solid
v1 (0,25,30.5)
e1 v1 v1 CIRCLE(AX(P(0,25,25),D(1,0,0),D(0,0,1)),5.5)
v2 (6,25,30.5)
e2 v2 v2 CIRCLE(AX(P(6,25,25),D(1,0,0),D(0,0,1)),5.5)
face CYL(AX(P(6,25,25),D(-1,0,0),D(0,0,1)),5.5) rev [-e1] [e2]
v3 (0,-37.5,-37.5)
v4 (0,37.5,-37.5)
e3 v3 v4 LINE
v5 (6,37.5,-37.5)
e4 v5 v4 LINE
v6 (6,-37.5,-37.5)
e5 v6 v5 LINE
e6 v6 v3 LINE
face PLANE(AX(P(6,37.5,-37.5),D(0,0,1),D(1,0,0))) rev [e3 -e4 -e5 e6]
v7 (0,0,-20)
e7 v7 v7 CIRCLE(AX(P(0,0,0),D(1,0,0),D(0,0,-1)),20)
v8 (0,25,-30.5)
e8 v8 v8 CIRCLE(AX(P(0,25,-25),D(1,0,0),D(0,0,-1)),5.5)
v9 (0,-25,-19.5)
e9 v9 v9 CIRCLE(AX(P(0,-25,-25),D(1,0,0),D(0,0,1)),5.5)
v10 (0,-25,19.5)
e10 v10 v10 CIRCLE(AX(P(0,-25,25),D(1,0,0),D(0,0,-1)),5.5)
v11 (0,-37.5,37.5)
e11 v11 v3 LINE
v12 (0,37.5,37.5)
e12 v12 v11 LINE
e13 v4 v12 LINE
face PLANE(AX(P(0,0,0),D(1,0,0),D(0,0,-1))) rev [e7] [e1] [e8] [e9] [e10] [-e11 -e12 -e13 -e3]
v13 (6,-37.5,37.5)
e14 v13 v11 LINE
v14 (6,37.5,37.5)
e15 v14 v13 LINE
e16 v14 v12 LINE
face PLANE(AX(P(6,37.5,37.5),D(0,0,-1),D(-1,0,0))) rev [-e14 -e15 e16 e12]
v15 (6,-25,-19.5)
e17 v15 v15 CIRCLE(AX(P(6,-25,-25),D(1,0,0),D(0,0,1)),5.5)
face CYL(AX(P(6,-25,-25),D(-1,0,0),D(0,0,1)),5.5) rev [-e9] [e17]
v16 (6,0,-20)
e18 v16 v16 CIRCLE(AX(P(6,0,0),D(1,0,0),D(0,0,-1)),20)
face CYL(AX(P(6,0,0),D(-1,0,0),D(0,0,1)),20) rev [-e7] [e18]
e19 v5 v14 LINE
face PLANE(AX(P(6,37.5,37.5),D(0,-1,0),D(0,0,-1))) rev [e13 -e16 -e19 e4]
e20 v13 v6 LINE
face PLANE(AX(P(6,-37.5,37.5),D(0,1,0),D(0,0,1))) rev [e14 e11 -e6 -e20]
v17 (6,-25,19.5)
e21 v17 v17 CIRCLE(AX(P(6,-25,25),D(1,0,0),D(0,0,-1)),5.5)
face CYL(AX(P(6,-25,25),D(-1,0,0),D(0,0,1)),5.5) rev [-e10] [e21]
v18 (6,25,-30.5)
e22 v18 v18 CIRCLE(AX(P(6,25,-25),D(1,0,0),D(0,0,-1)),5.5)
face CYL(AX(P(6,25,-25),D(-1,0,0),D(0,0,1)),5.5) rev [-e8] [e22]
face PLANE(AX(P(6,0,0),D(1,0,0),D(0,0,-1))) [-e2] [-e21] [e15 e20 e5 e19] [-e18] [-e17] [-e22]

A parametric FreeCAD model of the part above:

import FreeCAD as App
import Part
import Sketcher

V = App.Vector

doc = App.newDocument("Part")
body = doc.addObject("PartDesign::Body", "Body")

# Sketch on YZ plane
sketch1 = body.newObject("Sketcher::SketchObject", "Sketch")
sketch1.AttachmentSupport = (doc.getObject("YZ_Plane"), [""])
sketch1.MapMode = "FlatFace"
sketch1.addGeometry([
    Part.LineSegment(V(38, 38, 0), V(-38, 38, 0)),  # 0
    Part.LineSegment(V(-38, 38, 0), V(-38, -38, 0)),  # 1
    Part.LineSegment(V(-38, -38, 0), V(38, -38, 0)),  # 2
    Part.LineSegment(V(38, -38, 0), V(38, 38, 0)),  # 3
    Part.Circle(V(-25, 25, 0), V(0, 0, 1), 6),  # 4
    Part.Circle(V(-25, -25, 0), V(0, 0, 1), 6),  # 5
    Part.Circle(V(25, 25, 0), V(0, 0, 1), 6),  # 6
    Part.Circle(V(0, 0, 0), V(0, 0, 1), 20),  # 7
    Part.Circle(V(25, -25, 0), V(0, 0, 1), 6),  # 8
], False)
sketch1.addConstraint([
    Sketcher.Constraint("Coincident", 0, 2, 1, 1),
    Sketcher.Constraint("Coincident", 1, 2, 2, 1),
    Sketcher.Constraint("Coincident", 2, 2, 3, 1),
    Sketcher.Constraint("Coincident", 3, 2, 0, 1),
    Sketcher.Constraint("Horizontal", 0),
    Sketcher.Constraint("Vertical", 1),
    Sketcher.Constraint("Horizontal", 2),
    Sketcher.Constraint("Vertical", 3),
    Sketcher.Constraint("Coincident", 7, 3, -1, 1),
    Sketcher.Constraint("Equal", 4, 5),
    Sketcher.Constraint("Equal", 5, 6),
    Sketcher.Constraint("Equal", 6, 8),
    Sketcher.Constraint("Symmetric", 5, 3, 6, 3, -1, 1),
    Sketcher.Constraint("Symmetric", 4, 3, 8, 3, -1, 1),
    Sketcher.Constraint("Symmetric", 0, 2, 2, 2, -1, 1),
    Sketcher.Constraint("Symmetric", 4, 3, 6, 3, -2),
    Sketcher.Constraint("Equal", 2, 1),
    Sketcher.Constraint("Diameter", 4, 11.0),
    Sketcher.Constraint("Diameter", 7, 40.0),
    Sketcher.Constraint("DistanceX", 0, 2, 0, 1, 75.0),
    Sketcher.Constraint("DistanceX", 4, 3, -1, 1, 25.0),
    Sketcher.Constraint("DistanceY", -1, 1, 4, 3, 25.0),
])
pad1 = body.newObject("PartDesign::Pad", "Pad")
pad1.Profile = sketch1
pad1.Length = 6

doc.recompute()
